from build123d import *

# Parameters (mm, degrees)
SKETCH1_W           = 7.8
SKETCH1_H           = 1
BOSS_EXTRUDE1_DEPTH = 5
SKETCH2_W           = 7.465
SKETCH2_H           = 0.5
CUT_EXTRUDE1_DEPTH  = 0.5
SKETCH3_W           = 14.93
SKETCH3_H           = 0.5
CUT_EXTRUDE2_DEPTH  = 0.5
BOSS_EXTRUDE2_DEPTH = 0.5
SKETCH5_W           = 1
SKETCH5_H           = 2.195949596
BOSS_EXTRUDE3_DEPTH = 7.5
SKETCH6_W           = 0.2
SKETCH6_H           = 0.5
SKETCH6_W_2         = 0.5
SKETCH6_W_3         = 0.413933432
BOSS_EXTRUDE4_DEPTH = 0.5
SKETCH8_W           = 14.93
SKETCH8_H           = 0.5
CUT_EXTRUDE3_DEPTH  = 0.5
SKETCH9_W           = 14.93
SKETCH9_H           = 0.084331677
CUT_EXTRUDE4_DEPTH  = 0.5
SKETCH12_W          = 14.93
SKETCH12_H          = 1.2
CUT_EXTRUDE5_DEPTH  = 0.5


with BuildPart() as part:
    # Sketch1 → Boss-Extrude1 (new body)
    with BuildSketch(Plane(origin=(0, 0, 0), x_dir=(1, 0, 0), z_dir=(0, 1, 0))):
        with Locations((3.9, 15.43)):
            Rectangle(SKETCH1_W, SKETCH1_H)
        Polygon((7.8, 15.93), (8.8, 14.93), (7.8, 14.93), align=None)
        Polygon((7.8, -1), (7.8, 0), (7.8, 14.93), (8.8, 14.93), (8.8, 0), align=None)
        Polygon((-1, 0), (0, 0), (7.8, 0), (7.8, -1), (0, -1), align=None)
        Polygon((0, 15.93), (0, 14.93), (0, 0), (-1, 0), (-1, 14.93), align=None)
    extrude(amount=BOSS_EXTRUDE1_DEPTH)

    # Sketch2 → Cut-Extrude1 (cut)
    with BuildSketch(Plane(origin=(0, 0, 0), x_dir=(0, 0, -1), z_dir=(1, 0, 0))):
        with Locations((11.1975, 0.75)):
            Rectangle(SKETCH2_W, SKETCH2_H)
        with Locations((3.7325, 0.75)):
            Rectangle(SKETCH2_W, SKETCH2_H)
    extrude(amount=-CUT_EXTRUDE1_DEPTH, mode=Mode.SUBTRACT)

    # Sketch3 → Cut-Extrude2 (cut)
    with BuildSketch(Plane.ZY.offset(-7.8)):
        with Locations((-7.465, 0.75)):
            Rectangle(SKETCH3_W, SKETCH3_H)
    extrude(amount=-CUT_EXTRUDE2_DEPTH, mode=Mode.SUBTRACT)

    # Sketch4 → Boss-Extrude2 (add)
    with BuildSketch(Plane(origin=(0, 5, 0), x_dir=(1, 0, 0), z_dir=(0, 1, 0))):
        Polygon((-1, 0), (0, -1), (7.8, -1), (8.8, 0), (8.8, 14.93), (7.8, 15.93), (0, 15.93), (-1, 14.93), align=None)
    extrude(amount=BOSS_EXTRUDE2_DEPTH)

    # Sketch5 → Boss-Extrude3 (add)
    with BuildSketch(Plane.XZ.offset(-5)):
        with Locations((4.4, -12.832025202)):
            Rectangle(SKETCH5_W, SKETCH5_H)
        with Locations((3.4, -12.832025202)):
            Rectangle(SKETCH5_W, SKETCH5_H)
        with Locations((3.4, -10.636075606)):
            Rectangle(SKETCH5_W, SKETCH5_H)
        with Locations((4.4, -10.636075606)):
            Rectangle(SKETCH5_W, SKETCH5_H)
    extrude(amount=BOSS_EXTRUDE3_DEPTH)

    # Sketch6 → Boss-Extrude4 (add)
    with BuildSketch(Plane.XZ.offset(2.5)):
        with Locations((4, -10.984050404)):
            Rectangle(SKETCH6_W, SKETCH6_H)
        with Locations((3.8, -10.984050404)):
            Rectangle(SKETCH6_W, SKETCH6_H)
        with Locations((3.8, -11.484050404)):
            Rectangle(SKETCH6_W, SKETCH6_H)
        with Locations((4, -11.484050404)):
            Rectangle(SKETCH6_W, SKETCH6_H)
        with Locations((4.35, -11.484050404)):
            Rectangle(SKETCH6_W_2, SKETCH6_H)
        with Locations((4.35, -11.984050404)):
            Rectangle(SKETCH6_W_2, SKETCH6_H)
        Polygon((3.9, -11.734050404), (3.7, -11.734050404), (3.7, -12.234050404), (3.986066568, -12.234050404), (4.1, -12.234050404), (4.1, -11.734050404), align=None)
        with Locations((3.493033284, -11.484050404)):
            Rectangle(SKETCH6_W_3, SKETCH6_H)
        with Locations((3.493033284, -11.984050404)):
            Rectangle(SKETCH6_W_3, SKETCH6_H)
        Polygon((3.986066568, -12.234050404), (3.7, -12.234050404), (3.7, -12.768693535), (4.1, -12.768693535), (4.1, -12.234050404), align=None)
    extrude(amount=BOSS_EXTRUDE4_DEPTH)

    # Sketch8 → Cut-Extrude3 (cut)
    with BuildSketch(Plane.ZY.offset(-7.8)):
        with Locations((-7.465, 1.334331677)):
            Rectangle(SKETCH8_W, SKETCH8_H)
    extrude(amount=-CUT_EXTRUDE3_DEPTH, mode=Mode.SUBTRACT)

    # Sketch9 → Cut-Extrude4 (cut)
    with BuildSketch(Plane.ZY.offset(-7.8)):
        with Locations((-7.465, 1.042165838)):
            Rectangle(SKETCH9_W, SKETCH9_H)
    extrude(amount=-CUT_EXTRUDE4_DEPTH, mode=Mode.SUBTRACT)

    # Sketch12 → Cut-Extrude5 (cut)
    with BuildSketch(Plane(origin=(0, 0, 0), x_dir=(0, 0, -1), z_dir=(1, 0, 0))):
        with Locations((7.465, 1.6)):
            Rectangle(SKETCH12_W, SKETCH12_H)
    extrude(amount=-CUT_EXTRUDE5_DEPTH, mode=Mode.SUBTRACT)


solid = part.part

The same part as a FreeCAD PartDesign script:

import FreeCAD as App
import Part
import Sketcher

V = App.Vector
Q = App.Units.Quantity


def add_polygon(sketch, points):
    """Adds a closed chain of lines whose ends are joined by coincident constraints."""
    first, n = sketch.GeometryCount, len(points)
    for a, b in zip(points, points[1:] + points[:1]):
        sketch.addGeometry(Part.LineSegment(App.Vector(*a, 0), App.Vector(*b, 0)), False)
    for i in range(n):
        sketch.addConstraint(Sketcher.Constraint("Coincident", first + i, 2, first + (i + 1) % n, 1))

doc = App.newDocument("Part")
params = doc.addObject("Spreadsheet::Sheet", "Params")
for row, (alias, value) in enumerate([
    ("sketch1_width", "7.8 mm"),
    ("sketch1_height", "14.93 mm"),
    ("pad1_length", "5 mm"),
    ("sketch2_width", "0.5 mm"),
    ("sketch2_height", "14.93 mm"),
    ("pocket1_length", "0.5 mm"),
    ("sketch3_width", "0.5 mm"),
    ("sketch3_height", "14.93 mm"),
    ("pocket2_length", "0.5 mm"),
    ("sketch4_width", "7.8 mm"),
    ("sketch4_height", "14.93 mm"),
    ("pad2_length", "0.5 mm"),
    ("sketch5_width", "2 mm"),
    ("pad3_length", "7.5 mm"),
    ("sketch6_height", "1 mm"),
    ("sketch6_width", "0.4 mm"),
    ("sketch6_width2", "0.5 mm"),
    ("pad4_length", "0.5 mm"),
    ("sketch7_width", "0.5 mm"),
    ("sketch7_height", "14.93 mm"),
    ("pocket3_length", "0.5 mm"),
    ("sketch8_height", "14.93 mm"),
    ("pocket4_length", "0.5 mm"),
    ("sketch9_width", "1.2 mm"),
    ("sketch9_height", "14.93 mm"),
    ("pocket5_length", "0.5 mm"),
], start=1):
    params.set(f"A{row}", alias)
    params.set(f"B{row}", "=" + value)
    params.setAlias(f"B{row}", alias)

body = doc.addObject("PartDesign::Body", "Body")

# Sketch on XZ plane
sketch1 = body.newObject("Sketcher::SketchObject", "Sketch")
sketch1.AttachmentSupport = (doc.getObject("XZ_Plane"), [""])
sketch1.MapMode = "FlatFace"
add_polygon(sketch1, [(-1, 0), (0, 1), (7.8, 1), (8.8, 0), (8.8, -14.9), (7.8, -15.9), (0, -15.9), (-1, -14.9)])  # lines 0-7
add_polygon(sketch1, [(0, -14.9), (7.8, -14.9), (7.8, 0), (0, 0)])  # lines 8-11
sketch1.addConstraint([
    Sketcher.Constraint("Horizontal", 1),
    Sketcher.Constraint("Vertical", 3),
    Sketcher.Constraint("Horizontal", 5),
    Sketcher.Constraint("Vertical", 7),
    Sketcher.Constraint("Horizontal", 8),
    Sketcher.Constraint("Vertical", 9),
    Sketcher.Constraint("Horizontal", 10),
    Sketcher.Constraint("Vertical", 11),
    Sketcher.Constraint("Coincident", 10, 2, -1, 1),
    Sketcher.Constraint("PointOnObject", 0, 2, -2),
    Sketcher.Constraint("PointOnObject", 2, 2, -1),
    Sketcher.Constraint("PointOnObject", 5, 2, -2),
    Sketcher.Constraint("PointOnObject", 7, 2, -1),
    Sketcher.Constraint("Perpendicular", 0, 2),
    Sketcher.Constraint("Perpendicular", 2, 4),
    Sketcher.Constraint("Perpendicular", 4, 6),
    Sketcher.Constraint("Horizontal", 3, 2, 6, 2),
    Sketcher.Constraint("Horizontal", 6, 2, 8, 2),
    Sketcher.Constraint("Vertical", 1, 2, 4, 2),
    Sketcher.Constraint("Vertical", 4, 2, 8, 2),
    Sketcher.Constraint("DistanceX", 1, 1, 1, 2, Q("7.8 mm")),
    Sketcher.Constraint("DistanceY", -1, 1, 0, 2, Q("1 mm")),
    Sketcher.Constraint("DistanceY", 3, 2, 3, 1, Q("14.93 mm")),
])
sketch1.setExpression("Constraints[32]", "Params.sketch1_width")
sketch1.setExpression("Constraints[34]", "Params.sketch1_height")
pad1 = body.newObject("PartDesign::Pad", "Pad")
pad1.Profile = sketch1
pad1.setExpression("Length", "Params.pad1_length")
pad1.Reversed = True

# Sketch on YZ plane
sketch2 = body.newObject("Sketcher::SketchObject", "Sketch001")
sketch2.AttachmentSupport = (doc.getObject("YZ_Plane"), [""])
sketch2.MapMode = "FlatFace"
add_polygon(sketch2, [(0.5, -14.9), (1, -14.9), (1, 0), (0.5, 0)])  # lines 0-3
sketch2.addConstraint([
    Sketcher.Constraint("Horizontal", 0),
    Sketcher.Constraint("Vertical", 1),
    Sketcher.Constraint("Horizontal", 2),
    Sketcher.Constraint("Vertical", 3),
    Sketcher.Constraint("PointOnObject", 1, 2, -1),
    Sketcher.Constraint("DistanceX", 0, 1, 0, 2, Q("0.5 mm")),
    Sketcher.Constraint("DistanceX", -1, 1, 0, 2, Q("1 mm")),
    Sketcher.Constraint("DistanceY", 1, 1, 1, 2, Q("14.93 mm")),
])
sketch2.setExpression("Constraints[9]", "Params.sketch2_width")
sketch2.setExpression("Constraints[11]", "Params.sketch2_height")
pocket1 = body.newObject("PartDesign::Pocket", "Pocket")
pocket1.Profile = sketch2
pocket1.setExpression("Length", "Params.pocket1_length")

# Sketch on YZ plane
sketch3 = body.newObject("Sketcher::SketchObject", "Sketch002")
sketch3.AttachmentSupport = (doc.getObject("YZ_Plane"), [""])
sketch3.MapMode = "FlatFace"
sketch3.AttachmentOffset = App.Placement(V(0, 0, 7.8), App.Rotation())
add_polygon(sketch3, [(1, -14.9), (0.5, -14.9), (0.5, 0), (1, 0)])  # lines 0-3
sketch3.addConstraint([
    Sketcher.Constraint("Horizontal", 0),
    Sketcher.Constraint("Vertical", 1),
    Sketcher.Constraint("Horizontal", 2),
    Sketcher.Constraint("Vertical", 3),
    Sketcher.Constraint("PointOnObject", 1, 2, -1),
    Sketcher.Constraint("DistanceX", 0, 2, 0, 1, Q("0.5 mm")),
    Sketcher.Constraint("DistanceX", -1, 1, 2, 2, Q("1 mm")),
    Sketcher.Constraint("DistanceY", 1, 1, 1, 2, Q("14.93 mm")),
])
sketch3.setExpression("Constraints[9]", "Params.sketch3_width")
sketch3.setExpression("Constraints[11]", "Params.sketch3_height")
pocket2 = body.newObject("PartDesign::Pocket", "Pocket001")
pocket2.Profile = sketch3
pocket2.setExpression("Length", "Params.pocket2_length")
pocket2.Reversed = True

# Sketch on XZ plane
sketch4 = body.newObject("Sketcher::SketchObject", "Sketch003")
sketch4.AttachmentSupport = (doc.getObject("XZ_Plane"), [""])
sketch4.MapMode = "FlatFace"
sketch4.AttachmentOffset = App.Placement(V(0, 0, -5), App.Rotation())
add_polygon(sketch4, [(-1, 0), (0, 1), (7.8, 1), (8.8, 0), (8.8, -14.9), (7.8, -15.9), (0, -15.9), (-1, -14.9)])  # lines 0-7
sketch4.addConstraint([
    Sketcher.Constraint("Horizontal", 1),
    Sketcher.Constraint("Vertical", 3),
    Sketcher.Constraint("Horizontal", 5),
    Sketcher.Constraint("Vertical", 7),
    Sketcher.Constraint("PointOnObject", 0, 2, -2),
    Sketcher.Constraint("PointOnObject", 2, 2, -1),
    Sketcher.Constraint("PointOnObject", 5, 2, -2),
    Sketcher.Constraint("PointOnObject", 7, 2, -1),
    Sketcher.Constraint("Perpendicular", 0, 2),
    Sketcher.Constraint("Perpendicular", 2, 4),
    Sketcher.Constraint("Perpendicular", 4, 6),
    Sketcher.Constraint("Horizontal", 3, 2, 6, 2),
    Sketcher.Constraint("Vertical", 1, 2, 4, 2),
    Sketcher.Constraint("DistanceX", 1, 1, 1, 2, Q("7.8 mm")),
    Sketcher.Constraint("DistanceY", -1, 1, 0, 2, Q("1 mm")),
    Sketcher.Constraint("DistanceY", 3, 2, 3, 1, Q("14.93 mm")),
])
sketch4.setExpression("Constraints[21]", "Params.sketch4_width")
sketch4.setExpression("Constraints[23]", "Params.sketch4_height")
pad2 = body.newObject("PartDesign::Pad", "Pad001")
pad2.Profile = sketch4
pad2.setExpression("Length", "Params.pad2_length")
pad2.Reversed = True

# Sketch on XZ plane
sketch5 = body.newObject("Sketcher::SketchObject", "Sketch004")
sketch5.AttachmentSupport = (doc.getObject("XZ_Plane"), [""])
sketch5.MapMode = "FlatFace"
sketch5.AttachmentOffset = App.Placement(V(0, 0, -5), App.Rotation())
add_polygon(sketch5, [(4.9, -13.9), (4.9, -9.5), (2.9, -9.5), (2.9, -13.9)])  # lines 0-3
sketch5.addConstraint([
    Sketcher.Constraint("Vertical", 0),
    Sketcher.Constraint("Horizontal", 1),
    Sketcher.Constraint("Vertical", 2),
    Sketcher.Constraint("Horizontal", 3),
    Sketcher.Constraint("DistanceX", 1, 2, 1, 1, Q("2 mm")),
    Sketcher.Constraint("DistanceX", -1, 1, 0, 2, Q("4.9 mm")),
    Sketcher.Constraint("DistanceY", 2, 2, -1, 1, Q("13.93 mm")),
    Sketcher.Constraint("DistanceY", 0, 1, 0, 2, Q("4.391899 mm")),
])
sketch5.setExpression("Constraints[8]", "Params.sketch5_width")
pad3 = body.newObject("PartDesign::Pad", "Pad002")
pad3.Profile = sketch5
pad3.setExpression("Length", "Params.pad3_length")

# Sketch on XZ plane
sketch6 = body.newObject("Sketcher::SketchObject", "Sketch005")
sketch6.AttachmentSupport = (doc.getObject("XZ_Plane"), [""])
sketch6.MapMode = "FlatFace"
sketch6.AttachmentOffset = App.Placement(V(0, 0, 2.5), App.Rotation())
add_polygon(sketch6, [(4.1, -10.73), (3.7, -10.73), (3.7, -11.23), (3.29, -11.23), (3.29, -12.23), (3.7, -12.23), (3.7, -12.77), (4.1, -12.77), (4.1, -12.23), (4.6, -12.23), (4.6, -11.23), (4.1, -11.23)])  # lines 0-11
sketch6.addConstraint([
    Sketcher.Constraint("Horizontal", 0),
    Sketcher.Constraint("Vertical", 1),
    Sketcher.Constraint("Horizontal", 2),
    Sketcher.Constraint("Vertical", 3),
    Sketcher.Constraint("Horizontal", 4),
    Sketcher.Constraint("Vertical", 5),
    Sketcher.Constraint("Horizontal", 6),
    Sketcher.Constraint("Vertical", 7),
    Sketcher.Constraint("Horizontal", 8),
    Sketcher.Constraint("Vertical", 9),
    Sketcher.Constraint("Horizontal", 10),
    Sketcher.Constraint("Vertical", 11),
    Sketcher.Constraint("Horizontal", 4, 2, 7, 2),
    Sketcher.Constraint("Horizontal", 2, 2, 9, 2),
    Sketcher.Constraint("Vertical", 1, 2, 4, 2),
    Sketcher.Constraint("Vertical", 7, 2, 10, 2),
    Sketcher.Constraint("Equal", 10, 1),
    Sketcher.Constraint("DistanceY", 3, 2, 3, 1, Q("1 mm")),
    Sketcher.Constraint("DistanceX", 0, 2, 0, 1, Q("0.4 mm")),
    Sketcher.Constraint("DistanceX", 8, 1, 8, 2, Q("0.5 mm")),
    Sketcher.Constraint("DistanceX", -1, 1, 0, 2, Q("3.7 mm")),
    Sketcher.Constraint("DistanceX", 2, 2, 2, 1, Q("0.413933 mm")),
    Sketcher.Constraint("DistanceY", 5, 2, 5, 1, Q("0.534643 mm")),
    Sketcher.Constraint("DistanceY", 0, 2, -1, 1, Q("10.73405 mm")),
])
sketch6.setExpression("Constraints[29]", "Params.sketch6_height")
sketch6.setExpression("Constraints[30]", "Params.sketch6_width")
sketch6.setExpression("Constraints[31]", "Params.sketch6_width2")
pad4 = body.newObject("PartDesign::Pad", "Pad003")
pad4.Profile = sketch6
pad4.setExpression("Length", "Params.pad4_length")

# Sketch on YZ plane
sketch7 = body.newObject("Sketcher::SketchObject", "Sketch006")
sketch7.AttachmentSupport = (doc.getObject("YZ_Plane"), [""])
sketch7.MapMode = "FlatFace"
sketch7.AttachmentOffset = App.Placement(V(0, 0, 7.8), App.Rotation())
add_polygon(sketch7, [(1.6, -14.9), (1.1, -14.9), (1.1, 0), (1.6, 0)])  # lines 0-3
sketch7.addConstraint([
    Sketcher.Constraint("Horizontal", 0),
    Sketcher.Constraint("Vertical", 1),
    Sketcher.Constraint("Horizontal", 2),
    Sketcher.Constraint("Vertical", 3),
    Sketcher.Constraint("PointOnObject", 1, 2, -1),
    Sketcher.Constraint("DistanceX", 0, 2, 0, 1, Q("0.5 mm")),
    Sketcher.Constraint("DistanceY", 1, 1, 1, 2, Q("14.93 mm")),
    Sketcher.Constraint("DistanceX", -1, 1, 0, 2, Q("1.084332 mm")),
])
sketch7.setExpression("Constraints[9]", "Params.sketch7_width")
sketch7.setExpression("Constraints[10]", "Params.sketch7_height")
pocket3 = body.newObject("PartDesign::Pocket", "Pocket002")
pocket3.Profile = sketch7
pocket3.setExpression("Length", "Params.pocket3_length")
pocket3.Reversed = True

# Sketch on YZ plane
sketch8 = body.newObject("Sketcher::SketchObject", "Sketch007")
sketch8.AttachmentSupport = (doc.getObject("YZ_Plane"), [""])
sketch8.MapMode = "FlatFace"
sketch8.AttachmentOffset = App.Placement(V(0, 0, 7.8), App.Rotation())
add_polygon(sketch8, [(1.08, -14.93), (1, -14.93), (1, 0), (1.08, 0)])  # lines 0-3
sketch8.addConstraint([
    Sketcher.Constraint("Horizontal", 0),
    Sketcher.Constraint("Vertical", 1),
    Sketcher.Constraint("Horizontal", 2),
    Sketcher.Constraint("Vertical", 3),
    Sketcher.Constraint("PointOnObject", 1, 2, -1),
    Sketcher.Constraint("DistanceX", -1, 1, 0, 2, Q("1 mm")),
    Sketcher.Constraint("DistanceY", 1, 1, 1, 2, Q("14.93 mm")),
    Sketcher.Constraint("DistanceX", 0, 2, 0, 1, Q("0.084332 mm")),
])
sketch8.setExpression("Constraints[10]", "Params.sketch8_height")
pocket4 = body.newObject("PartDesign::Pocket", "Pocket003")
pocket4.Profile = sketch8
pocket4.setExpression("Length", "Params.pocket4_length")
pocket4.Reversed = True

# Sketch on YZ plane
sketch9 = body.newObject("Sketcher::SketchObject", "Sketch008")
sketch9.AttachmentSupport = (doc.getObject("YZ_Plane"), [""])
sketch9.MapMode = "FlatFace"
add_polygon(sketch9, [(2.2, 0), (1, 0), (1, -14.9), (2.2, -14.9)])  # lines 0-3
sketch9.addConstraint([
    Sketcher.Constraint("Horizontal", 0),
    Sketcher.Constraint("Vertical", 1),
    Sketcher.Constraint("Horizontal", 2),
    Sketcher.Constraint("Vertical", 3),
    Sketcher.Constraint("PointOnObject", 0, 2, -1),
    Sketcher.Constraint("DistanceX", 0, 2, 0, 1, Q("1.2 mm")),
    Sketcher.Constraint("DistanceX", -1, 1, 0, 2, Q("1 mm")),
    Sketcher.Constraint("DistanceY", 1, 2, 1, 1, Q("14.93 mm")),
])
sketch9.setExpression("Constraints[9]", "Params.sketch9_width")
sketch9.setExpression("Constraints[11]", "Params.sketch9_height")
pocket5 = body.newObject("PartDesign::Pocket", "Pocket004")
pocket5.Profile = sketch9
pocket5.setExpression("Length", "Params.pocket5_length")

doc.recompute()
